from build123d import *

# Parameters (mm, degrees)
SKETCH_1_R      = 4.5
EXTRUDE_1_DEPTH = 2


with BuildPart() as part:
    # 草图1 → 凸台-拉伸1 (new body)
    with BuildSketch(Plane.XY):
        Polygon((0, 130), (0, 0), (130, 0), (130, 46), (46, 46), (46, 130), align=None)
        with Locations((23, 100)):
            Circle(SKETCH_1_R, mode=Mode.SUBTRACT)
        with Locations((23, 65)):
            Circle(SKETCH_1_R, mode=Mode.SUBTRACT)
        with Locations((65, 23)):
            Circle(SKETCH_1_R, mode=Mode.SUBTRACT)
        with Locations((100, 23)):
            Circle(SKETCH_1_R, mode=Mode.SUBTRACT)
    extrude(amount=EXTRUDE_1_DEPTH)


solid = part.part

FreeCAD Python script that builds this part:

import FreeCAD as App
import Part
import Sketcher
from FreeCAD import Vector
Q = App.Units.Quantity


def add_polygon(sketch, points):
    """Adds a closed chain of lines whose ends are joined by coincident constraints."""
    first, n = sketch.GeometryCount, len(points)
    for a, b in zip(points, points[1:] + points[:1]):
        sketch.addGeometry(Part.LineSegment(App.Vector(*a, 0), App.Vector(*b, 0)), False)
    for i in range(n):
        sketch.addConstraint(Sketcher.Constraint("Coincident", first + i, 2, first + (i + 1) % n, 1))

doc = App.newDocument("Part")
body = doc.addObject("PartDesign::Body", "Body")

sketch1 = body.newObject("Sketcher::SketchObject", "Sketch")
sketch1.AttachmentSupport = (doc.getObject("XY_Plane"), [""])
sketch1.MapMode = "FlatFace"
add_polygon(sketch1, [(0, 130), (0, 0), (130, 0), (130, 46), (46, 46), (46, 130)])
sketch1.addGeometry(Part.Circle(Vector(65, 23, 0), Vector(0, 0, 1), 4.5), False)
sketch1.addGeometry(Part.Circle(Vector(100, 23, 0), Vector(0, 0, 1), 4.5), False)
sketch1.addGeometry(Part.Circle(Vector(23, 65, 0), Vector(0, 0, 1), 4.5), False)
sketch1.addGeometry(Part.Circle(Vector(23, 100, 0), Vector(0, 0, 1), 4.5), False)
sketch1.addConstraint([
    Sketcher.Constraint("Vertical", 0),
    Sketcher.Constraint("Horizontal", 1),
    Sketcher.Constraint("Vertical", 2),
    Sketcher.Constraint("Horizontal", 3),
    Sketcher.Constraint("Vertical", 4),
    Sketcher.Constraint("Horizontal", 5),
    Sketcher.Constraint("Coincident", 0, 2, -1, 1),
    Sketcher.Constraint("Equal", 6, 7),
    Sketcher.Constraint("Equal", 7, 8),
    Sketcher.Constraint("Equal", 8, 9),
    Sketcher.Constraint("Horizontal", 6, 3, 7, 3),
    Sketcher.Constraint("Vertical", 8, 3, 9, 3),
    Sketcher.Constraint("Equal", 1, 0),
    Sketcher.Constraint("Equal", 5, 2),
    Sketcher.Constraint("Diameter", 6, Q("9 mm")),
    Sketcher.Constraint("DistanceX", 1, 1, 1, 2, Q("130 mm")),
    Sketcher.Constraint("DistanceX", 3, 2, 3, 1, Q("84 mm")),
    Sketcher.Constraint("DistanceX", -1, 1, 6, 3, Q("65 mm")),
    Sketcher.Constraint("DistanceY", -1, 1, 6, 3, Q("23 mm")),
    Sketcher.Constraint("DistanceX", -1, 1, 7, 3, Q("100 mm")),
    Sketcher.Constraint("DistanceX", -1, 1, 8, 3, Q("23 mm")),
    Sketcher.Constraint("DistanceY", -1, 1, 8, 3, Q("65 mm")),
    Sketcher.Constraint("DistanceY", -1, 1, 9, 3, Q("100 mm")),
])
pad1 = body.newObject("PartDesign::Pad", "Pad")
pad1.Profile = sketch1
pad1.Length = 2

doc.recompute()
